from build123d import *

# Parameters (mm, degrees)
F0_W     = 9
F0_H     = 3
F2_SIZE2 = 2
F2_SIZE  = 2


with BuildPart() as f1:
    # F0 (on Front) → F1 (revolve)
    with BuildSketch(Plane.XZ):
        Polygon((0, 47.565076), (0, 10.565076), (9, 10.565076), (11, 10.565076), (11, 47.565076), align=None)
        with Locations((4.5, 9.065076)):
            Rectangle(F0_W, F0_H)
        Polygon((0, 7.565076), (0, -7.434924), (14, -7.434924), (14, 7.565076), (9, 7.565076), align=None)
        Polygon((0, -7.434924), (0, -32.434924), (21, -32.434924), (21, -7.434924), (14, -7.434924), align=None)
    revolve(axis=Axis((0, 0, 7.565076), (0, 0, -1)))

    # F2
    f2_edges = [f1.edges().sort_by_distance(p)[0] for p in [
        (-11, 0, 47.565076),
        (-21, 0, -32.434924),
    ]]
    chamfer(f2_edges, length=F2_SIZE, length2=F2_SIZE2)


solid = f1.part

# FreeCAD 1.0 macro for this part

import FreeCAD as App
import Part
import Sketcher

V = App.Vector


def edges_at(feature, points):
    """Names of the edges that pass closest to the given points."""
    edges = feature.Shape.Edges
    near = lambda p: min(range(len(edges)), key=lambda i: edges[i].distToShape(Part.Vertex(*p))[0])
    return sorted({f"Edge{near(p) + 1}" for p in points})

doc = App.newDocument("Part")
body = doc.addObject("PartDesign::Body", "Body")

# Sketch on XZ plane
sketch1 = doc.addObject("Sketcher::SketchObject", "Sketch")
body.addObject(sketch1)
sketch1.AttachmentSupport = (doc.XZ_Plane, [""])
sketch1.MapMode = "FlatFace"
sketch1.addGeometry([
    Part.LineSegment(V(0, 47.6, 0), V(0, -32.4, 0)),  # 0
    Part.LineSegment(V(0, -32.4, 0), V(21, -32.4, 0)),  # 1
    Part.LineSegment(V(21, -32.4, 0), V(21, -7.4, 0)),  # 2
    Part.LineSegment(V(21, -7.4, 0), V(14, -7.4, 0)),  # 3
    Part.LineSegment(V(14, -7.4, 0), V(14, 7.6, 0)),  # 4
    Part.LineSegment(V(14, 7.6, 0), V(9, 7.6, 0)),  # 5
    Part.LineSegment(V(9, 7.6, 0), V(9, 10.6, 0)),  # 6
    Part.LineSegment(V(9, 10.6, 0), V(11, 10.6, 0)),  # 7
    Part.LineSegment(V(11, 10.6, 0), V(11, 47.6, 0)),  # 8
    Part.LineSegment(V(11, 47.6, 0), V(0, 47.6, 0)),  # 9
], False)
sketch1.addConstraint([
    Sketcher.Constraint("Coincident", 0, 2, 1, 1),
    Sketcher.Constraint("Coincident", 1, 2, 2, 1),
    Sketcher.Constraint("Coincident", 2, 2, 3, 1),
    Sketcher.Constraint("Coincident", 3, 2, 4, 1),
    Sketcher.Constraint("Coincident", 4, 2, 5, 1),
    Sketcher.Constraint("Coincident", 5, 2, 6, 1),
    Sketcher.Constraint("Coincident", 6, 2, 7, 1),
    Sketcher.Constraint("Coincident", 7, 2, 8, 1),
    Sketcher.Constraint("Coincident", 8, 2, 9, 1),
    Sketcher.Constraint("Coincident", 9, 2, 0, 1),
    Sketcher.Constraint("Vertical", 0),
    Sketcher.Constraint("Horizontal", 1),
    Sketcher.Constraint("Vertical", 2),
    Sketcher.Constraint("Horizontal", 3),
    Sketcher.Constraint("Vertical", 4),
    Sketcher.Constraint("Horizontal", 5),
    Sketcher.Constraint("Vertical", 6),
    Sketcher.Constraint("Horizontal", 7),
    Sketcher.Constraint("Vertical", 8),
    Sketcher.Constraint("Horizontal", 9),
    Sketcher.Constraint("PointOnObject", 0, 2, -2),
    Sketcher.Constraint("DistanceX", 1, 1, 1, 2, 21.0),
    Sketcher.Constraint("DistanceX", 3, 2, 3, 1, 7.0),
    Sketcher.Constraint("DistanceX", 5, 2, 5, 1, 5.0),
    Sketcher.Constraint("DistanceX", 7, 1, 7, 2, 2.0),
    Sketcher.Constraint("DistanceY", 0, 2, 0, 1, 80.0),
    Sketcher.Constraint("DistanceY", 2, 1, 2, 2, 25.0),
    Sketcher.Constraint("DistanceY", 4, 1, 4, 2, 15.0),
    Sketcher.Constraint("DistanceY", 6, 1, 6, 2, 3.0),
    Sketcher.Constraint("DistanceY", 0, 2, -1, 1, 32.434924),
])
revolution = doc.addObject("PartDesign::Revolution", "Revolution")
body.addObject(revolution)
revolution.Profile = sketch1
revolution.ReferenceAxis = (sketch1, ["V_Axis"])
revolution.Angle = 360
doc.recompute()

chamfer = doc.addObject("PartDesign::Chamfer", "Chamfer")
body.addObject(chamfer)
chamfer.Base = (revolution, edges_at(revolution, [(-11, 0, 47.565), (-21, 0, -32.435)]))
chamfer.ChamferType = "Two distances"
chamfer.Size = 2
chamfer.Size2 = 2

doc.recompute()
